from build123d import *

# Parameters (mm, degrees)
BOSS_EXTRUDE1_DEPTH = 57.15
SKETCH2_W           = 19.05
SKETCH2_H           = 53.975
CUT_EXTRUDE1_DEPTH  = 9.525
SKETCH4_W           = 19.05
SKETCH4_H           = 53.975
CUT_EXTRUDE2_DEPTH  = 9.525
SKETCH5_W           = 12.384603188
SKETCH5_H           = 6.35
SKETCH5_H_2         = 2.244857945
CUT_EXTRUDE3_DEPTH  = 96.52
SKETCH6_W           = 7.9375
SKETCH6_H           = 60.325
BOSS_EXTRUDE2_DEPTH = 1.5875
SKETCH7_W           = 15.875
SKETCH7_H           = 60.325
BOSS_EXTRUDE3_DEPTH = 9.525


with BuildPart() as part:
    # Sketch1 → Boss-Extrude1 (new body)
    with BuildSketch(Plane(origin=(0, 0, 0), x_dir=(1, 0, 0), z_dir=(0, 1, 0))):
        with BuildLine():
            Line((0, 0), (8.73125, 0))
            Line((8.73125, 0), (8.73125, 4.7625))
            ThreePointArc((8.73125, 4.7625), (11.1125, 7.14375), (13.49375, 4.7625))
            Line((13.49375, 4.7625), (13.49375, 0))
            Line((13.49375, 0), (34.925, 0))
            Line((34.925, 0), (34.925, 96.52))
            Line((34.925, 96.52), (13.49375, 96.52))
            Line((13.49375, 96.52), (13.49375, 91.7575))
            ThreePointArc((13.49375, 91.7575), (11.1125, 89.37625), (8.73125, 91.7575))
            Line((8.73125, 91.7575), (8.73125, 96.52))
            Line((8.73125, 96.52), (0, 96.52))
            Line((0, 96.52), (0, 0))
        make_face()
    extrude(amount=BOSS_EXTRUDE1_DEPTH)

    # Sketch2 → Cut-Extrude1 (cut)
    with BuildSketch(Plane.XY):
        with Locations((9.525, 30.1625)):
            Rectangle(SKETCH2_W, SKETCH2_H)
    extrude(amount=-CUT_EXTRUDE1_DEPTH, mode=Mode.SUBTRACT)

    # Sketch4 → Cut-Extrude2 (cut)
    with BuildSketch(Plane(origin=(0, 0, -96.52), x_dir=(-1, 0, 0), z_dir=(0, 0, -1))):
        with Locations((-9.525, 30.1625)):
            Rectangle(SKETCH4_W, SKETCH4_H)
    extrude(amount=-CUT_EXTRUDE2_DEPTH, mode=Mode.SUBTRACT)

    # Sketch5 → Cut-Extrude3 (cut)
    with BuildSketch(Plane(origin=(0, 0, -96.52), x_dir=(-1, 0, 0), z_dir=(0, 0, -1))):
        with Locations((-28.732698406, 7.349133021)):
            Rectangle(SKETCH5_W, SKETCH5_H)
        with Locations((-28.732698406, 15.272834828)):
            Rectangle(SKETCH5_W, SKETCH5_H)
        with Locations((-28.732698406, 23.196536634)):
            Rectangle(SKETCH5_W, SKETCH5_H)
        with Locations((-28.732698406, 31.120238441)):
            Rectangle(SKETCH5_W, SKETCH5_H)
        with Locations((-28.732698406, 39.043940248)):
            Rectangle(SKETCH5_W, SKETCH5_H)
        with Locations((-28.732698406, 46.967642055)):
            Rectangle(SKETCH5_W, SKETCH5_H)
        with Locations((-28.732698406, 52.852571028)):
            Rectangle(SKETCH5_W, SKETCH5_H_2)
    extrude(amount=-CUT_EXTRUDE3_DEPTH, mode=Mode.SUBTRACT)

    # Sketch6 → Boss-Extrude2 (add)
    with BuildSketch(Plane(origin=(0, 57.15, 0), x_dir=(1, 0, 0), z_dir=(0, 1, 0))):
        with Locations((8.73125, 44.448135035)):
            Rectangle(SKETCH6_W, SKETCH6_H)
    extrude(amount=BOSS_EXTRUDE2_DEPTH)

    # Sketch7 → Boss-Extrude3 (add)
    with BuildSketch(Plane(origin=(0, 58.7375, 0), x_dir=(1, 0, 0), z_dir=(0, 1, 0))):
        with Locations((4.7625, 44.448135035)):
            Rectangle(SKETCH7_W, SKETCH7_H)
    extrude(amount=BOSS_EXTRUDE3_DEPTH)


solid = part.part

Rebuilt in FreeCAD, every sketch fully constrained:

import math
import FreeCAD as App
import Part
import Sketcher
from FreeCAD import Vector
Q = App.Units.Quantity


def add_polygon(sketch, points):
    """Adds a closed chain of lines whose ends are joined by coincident constraints."""
    first, n = sketch.GeometryCount, len(points)
    for a, b in zip(points, points[1:] + points[:1]):
        sketch.addGeometry(Part.LineSegment(App.Vector(*a, 0), App.Vector(*b, 0)), False)
    for i in range(n):
        sketch.addConstraint(Sketcher.Constraint("Coincident", first + i, 2, first + (i + 1) % n, 1))

doc = App.newDocument("Part")
body = doc.addObject("PartDesign::Body", "Body")

sketch1 = doc.addObject("Sketcher::SketchObject", "Sketch")
body.addObject(sketch1)
sketch1.AttachmentSupport = (doc.XZ_Plane, [""])
sketch1.MapMode = "FlatFace"
sketch1.addGeometry(Part.LineSegment(Vector(0, 0, 0), Vector(8.7, 0, 0)), False)
sketch1.addGeometry(Part.LineSegment(Vector(8.7, 0, 0), Vector(8.7, -4.8, 0)), False)
sketch1.addGeometry(Part.ArcOfCircle(Part.Circle(Vector(11.1, -4.8, 0), Vector(0, 0, 1), 2.4), math.radians(180), math.radians(360)), False)
sketch1.addGeometry(Part.LineSegment(Vector(13.5, -4.8, 0), Vector(13.5, 0, 0)), False)
sketch1.addGeometry(Part.LineSegment(Vector(13.5, 0, 0), Vector(34.9, 0, 0)), False)
sketch1.addGeometry(Part.LineSegment(Vector(34.9, 0, 0), Vector(34.9, -96.5, 0)), False)
sketch1.addGeometry(Part.LineSegment(Vector(34.9, -96.5, 0), Vector(13.5, -96.5, 0)), False)
sketch1.addGeometry(Part.LineSegment(Vector(13.5, -96.5, 0), Vector(13.5, -91.8, 0)), False)
sketch1.addGeometry(Part.ArcOfCircle(Part.Circle(Vector(11.1, -91.8, 0), Vector(0, 0, 1), 2.4), math.radians(0), math.radians(180)), False)
sketch1.addGeometry(Part.LineSegment(Vector(8.7, -91.8, 0), Vector(8.7, -96.5, 0)), False)
sketch1.addGeometry(Part.LineSegment(Vector(8.7, -96.5, 0), Vector(0, -96.5, 0)), False)
sketch1.addGeometry(Part.LineSegment(Vector(0, -96.5, 0), Vector(0, 0, 0)), False)
sketch1.addConstraint(Sketcher.Constraint("Coincident", 0, 2, 1, 1))
sketch1.addConstraint(Sketcher.Constraint("Tangent", 1, 2, 2, 1))
sketch1.addConstraint(Sketcher.Constraint("Tangent", 2, 2, 3, 1))
sketch1.addConstraint(Sketcher.Constraint("Coincident", 3, 2, 4, 1))
sketch1.addConstraint(Sketcher.Constraint("Coincident", 4, 2, 5, 1))
sketch1.addConstraint(Sketcher.Constraint("Coincident", 5, 2, 6, 1))
sketch1.addConstraint(Sketcher.Constraint("Coincident", 6, 2, 7, 1))
sketch1.addConstraint(Sketcher.Constraint("Tangent", 7, 2, 8, 1))
sketch1.addConstraint(Sketcher.Constraint("Tangent", 8, 2, 9, 1))
sketch1.addConstraint(Sketcher.Constraint("Coincident", 9, 2, 10, 1))
sketch1.addConstraint(Sketcher.Constraint("Coincident", 10, 2, 11, 1))
sketch1.addConstraint(Sketcher.Constraint("Coincident", 11, 2, 0, 1))
sketch1.addConstraint(Sketcher.Constraint("Horizontal", 0))
sketch1.addConstraint(Sketcher.Constraint("Vertical", 1))
sketch1.addConstraint(Sketcher.Constraint("Vertical", 3))
sketch1.addConstraint(Sketcher.Constraint("Horizontal", 4))
sketch1.addConstraint(Sketcher.Constraint("Vertical", 5))
sketch1.addConstraint(Sketcher.Constraint("Horizontal", 6))
sketch1.addConstraint(Sketcher.Constraint("Vertical", 7))
sketch1.addConstraint(Sketcher.Constraint("Vertical", 9))
sketch1.addConstraint(Sketcher.Constraint("Horizontal", 10))
sketch1.addConstraint(Sketcher.Constraint("Vertical", 11))
sketch1.addConstraint(Sketcher.Constraint("Coincident", 11, 2, -1, 1))
sketch1.addConstraint(Sketcher.Constraint("Equal", 2, 8))
sketch1.addConstraint(Sketcher.Constraint("PointOnObject", 3, 2, -1))
sketch1.addConstraint(Sketcher.Constraint("Horizontal", 6, 2, 9, 2))
sketch1.addConstraint(Sketcher.Constraint("Vertical", 2, 3, 8, 3))
sketch1.addConstraint(Sketcher.Constraint("Equal", 3, 7))
sketch1.addConstraint(Sketcher.Constraint("DistanceY", 5, 2, 5, 1, Q("3.8 in")))
sketch1.addConstraint(Sketcher.Constraint("Radius", 2, Q("0.09375 in")))
sketch1.addConstraint(Sketcher.Constraint("DistanceX", 0, 1, 0, 2, Q("0.34375 in")))
sketch1.addConstraint(Sketcher.Constraint("DistanceX", 4, 1, 4, 2, Q("0.84375 in")))
sketch1.addConstraint(Sketcher.Constraint("DistanceY", 1, 2, 1, 1, Q("0.1875 in")))
pad1 = doc.addObject("PartDesign::Pad", "Pad")
body.addObject(pad1)
pad1.Profile = sketch1
pad1.Length = Q("2.25 in")
pad1.Reversed = True

sketch2 = doc.addObject("Sketcher::SketchObject", "Sketch001")
body.addObject(sketch2)
sketch2.AttachmentSupport = (doc.XY_Plane, [""])
sketch2.MapMode = "FlatFace"
add_polygon(sketch2, [(0, 57), (0, 3), (19, 3), (19, 57)])
sketch2.addConstraint(Sketcher.Constraint("Vertical", 0))
sketch2.addConstraint(Sketcher.Constraint("Horizontal", 1))
sketch2.addConstraint(Sketcher.Constraint("Vertical", 2))
sketch2.addConstraint(Sketcher.Constraint("Horizontal", 3))
sketch2.addConstraint(Sketcher.Constraint("PointOnObject", 0, 2, -2))
sketch2.addConstraint(Sketcher.Constraint("DistanceX", 1, 1, 1, 2, Q("0.75 in")))
sketch2.addConstraint(Sketcher.Constraint("DistanceY", 0, 2, 0, 1, Q("2.125 in")))
sketch2.addConstraint(Sketcher.Constraint("DistanceY", -1, 1, 2, 2, Q("2.25 in")))
pocket1 = doc.addObject("PartDesign::Pocket", "Pocket")
body.addObject(pocket1)
pocket1.Profile = sketch2
pocket1.Length = Q("0.375 in")

sketch3 = doc.addObject("Sketcher::SketchObject", "Sketch002")
body.addObject(sketch3)
sketch3.AttachmentSupport = (doc.XY_Plane, [""])
sketch3.MapMode = "FlatFace"
sketch3.AttachmentOffset = App.Placement(Vector(0, 0, -3.8 * 25.4), App.Rotation())
add_polygon(sketch3, [(19, 57), (19, 3), (0, 3), (0, 57)])
sketch3.addConstraint(Sketcher.Constraint("Vertical", 0))
sketch3.addConstraint(Sketcher.Constraint("Horizontal", 1))
sketch3.addConstraint(Sketcher.Constraint("Vertical", 2))
sketch3.addConstraint(Sketcher.Constraint("Horizontal", 3))
sketch3.addConstraint(Sketcher.Constraint("PointOnObject", 1, 2, -2))
sketch3.addConstraint(Sketcher.Constraint("DistanceX", 1, 2, 1, 1, Q("0.75 in")))
sketch3.addConstraint(Sketcher.Constraint("DistanceY", 0, 2, 0, 1, Q("2.125 in")))
sketch3.addConstraint(Sketcher.Constraint("DistanceY", -1, 1, 2, 2, Q("2.25 in")))
pocket2 = doc.addObject("PartDesign::Pocket", "Pocket001")
body.addObject(pocket2)
pocket2.Profile = sketch3
pocket2.Length = Q("0.375 in")
pocket2.Reversed = True

sketch4 = doc.addObject("Sketcher::SketchObject", "Sketch003")
body.addObject(sketch4)
sketch4.AttachmentSupport = (doc.XY_Plane, [""])
sketch4.MapMode = "FlatFace"
sketch4.AttachmentOffset = App.Placement(Vector(0, 0, -3.8 * 25.4), App.Rotation())
add_polygon(sketch4, [(34.9, 10.5), (34.9, 4.2), (22.5, 4.2), (22.5, 10.5)])
add_polygon(sketch4, [(34.9, 18.4), (34.9, 12.1), (22.5, 12.1), (22.5, 18.4)])
add_polygon(sketch4, [(34.9, 26.4), (34.9, 20), (22.5, 20), (22.5, 26.4)])
add_polygon(sketch4, [(34.9, 34.3), (34.9, 27.9), (22.5, 27.9), (22.5, 34.3)])
add_polygon(sketch4, [(34.9, 42.2), (34.9, 35.9), (22.5, 35.9), (22.5, 42.2)])
add_polygon(sketch4, [(34.9, 50.1), (34.9, 43.8), (22.5, 43.8), (22.5, 50.1)])
add_polygon(sketch4, [(34.9, 54), (34.9, 51.7), (22.5, 51.7), (22.5, 54)])
sketch4.addConstraint(Sketcher.Constraint("Vertical", 0))
sketch4.addConstraint(Sketcher.Constraint("Horizontal", 1))
sketch4.addConstraint(Sketcher.Constraint("Vertical", 2))
sketch4.addConstraint(Sketcher.Constraint("Horizontal", 3))
sketch4.addConstraint(Sketcher.Constraint("Vertical", 4))
sketch4.addConstraint(Sketcher.Constraint("Horizontal", 5))
sketch4.addConstraint(Sketcher.Constraint("Vertical", 6))
sketch4.addConstraint(Sketcher.Constraint("Horizontal", 7))
sketch4.addConstraint(Sketcher.Constraint("Vertical", 8))
sketch4.addConstraint(Sketcher.Constraint("Horizontal", 9))
sketch4.addConstraint(Sketcher.Constraint("Vertical", 10))
sketch4.addConstraint(Sketcher.Constraint("Horizontal", 11))
sketch4.addConstraint(Sketcher.Constraint("Vertical", 12))
sketch4.addConstraint(Sketcher.Constraint("Horizontal", 13))
sketch4.addConstraint(Sketcher.Constraint("Vertical", 14))
sketch4.addConstraint(Sketcher.Constraint("Horizontal", 15))
sketch4.addConstraint(Sketcher.Constraint("Vertical", 16))
sketch4.addConstraint(Sketcher.Constraint("Horizontal", 17))
sketch4.addConstraint(Sketcher.Constraint("Vertical", 18))
sketch4.addConstraint(Sketcher.Constraint("Horizontal", 19))
sketch4.addConstraint(Sketcher.Constraint("Vertical", 20))
sketch4.addConstraint(Sketcher.Constraint("Horizontal", 21))
sketch4.addConstraint(Sketcher.Constraint("Vertical", 22))
sketch4.addConstraint(Sketcher.Constraint("Horizontal", 23))
sketch4.addConstraint(Sketcher.Constraint("Vertical", 24))
sketch4.addConstraint(Sketcher.Constraint("Horizontal", 25))
sketch4.addConstraint(Sketcher.Constraint("Vertical", 26))
sketch4.addConstraint(Sketcher.Constraint("Horizontal", 27))
sketch4.addConstraint(Sketcher.Constraint("Vertical", 3, 2, 4, 2))
sketch4.addConstraint(Sketcher.Constraint("Vertical", 2, 2, 5, 2))
sketch4.addConstraint(Sketcher.Constraint("Vertical", 7, 2, 8, 2))
sketch4.addConstraint(Sketcher.Constraint("Vertical", 6, 2, 9, 2))
sketch4.addConstraint(Sketcher.Constraint("Vertical", 11, 2, 12, 2))
sketch4.addConstraint(Sketcher.Constraint("Vertical", 10, 2, 13, 2))
sketch4.addConstraint(Sketcher.Constraint("Vertical", 15, 2, 16, 2))
sketch4.addConstraint(Sketcher.Constraint("Vertical", 14, 2, 17, 2))
sketch4.addConstraint(Sketcher.Constraint("Vertical", 19, 2, 20, 2))
sketch4.addConstraint(Sketcher.Constraint("Vertical", 18, 2, 21, 2))
sketch4.addConstraint(Sketcher.Constraint("Vertical", 23, 2, 24, 2))
sketch4.addConstraint(Sketcher.Constraint("Vertical", 22, 2, 25, 2))
sketch4.addConstraint(Sketcher.Constraint("Equal", 2, 4))
sketch4.addConstraint(Sketcher.Constraint("Equal", 6, 8))
sketch4.addConstraint(Sketcher.Constraint("Equal", 10, 12))
sketch4.addConstraint(Sketcher.Constraint("Equal", 14, 16))
sketch4.addConstraint(Sketcher.Constraint("Equal", 18, 20))
sketch4.addConstraint(Sketcher.Constraint("DistanceY", 0, 2, 0, 1, Q("0.25 in")))
sketch4.addConstraint(Sketcher.Constraint("DistanceX", -1, 1, 0, 2, Q("1.375 in")))
sketch4.addConstraint(Sketcher.Constraint("DistanceY", -1, 1, 26, 2, Q("2.125 in")))
sketch4.addConstraint(Sketcher.Constraint("DistanceY", 23, 2, 24, 2, Q("0.0625 in")))
sketch4.addConstraint(Sketcher.Constraint("DistanceY", 3, 2, 4, 2, Q("1.573702 mm")))
sketch4.addConstraint(Sketcher.Constraint("DistanceY", 7, 2, 8, 2, Q("1.573702 mm")))
sketch4.addConstraint(Sketcher.Constraint("DistanceY", 11, 2, 12, 2, Q("1.573702 mm")))
sketch4.addConstraint(Sketcher.Constraint("DistanceY", 15, 2, 16, 2, Q("1.573702 mm")))
sketch4.addConstraint(Sketcher.Constraint("DistanceY", 19, 2, 20, 2, Q("1.573702 mm")))
sketch4.addConstraint(Sketcher.Constraint("DistanceX", 1, 2, 1, 1, Q("12.384603 mm")))
sketch4.addConstraint(Sketcher.Constraint("DistanceY", 24, 2, 24, 1, Q("2.244858 mm")))
pocket3 = doc.addObject("PartDesign::Pocket", "Pocket002")
body.addObject(pocket3)
pocket3.Profile = sketch4
pocket3.Length = Q("3.8 in")
pocket3.Reversed = True

sketch5 = doc.addObject("Sketcher::SketchObject", "Sketch004")
body.addObject(sketch5)
sketch5.AttachmentSupport = (doc.XZ_Plane, [""])
sketch5.MapMode = "FlatFace"
sketch5.AttachmentOffset = App.Placement(Vector(0, 0, -2.25 * 25.4), App.Rotation())
add_polygon(sketch5, [(5, -75), (5, -14), (13, -14), (13, -75)])
sketch5.addConstraint(Sketcher.Constraint("Vertical", 0))
sketch5.addConstraint(Sketcher.Constraint("Horizontal", 1))
sketch5.addConstraint(Sketcher.Constraint("Vertical", 2))
sketch5.addConstraint(Sketcher.Constraint("Horizontal", 3))
sketch5.addConstraint(Sketcher.Constraint("DistanceX", -1, 1, 1, 2, Q("0.5 in")))
sketch5.addConstraint(Sketcher.Constraint("DistanceX", 1, 1, 1, 2, Q("0.3125 in")))
sketch5.addConstraint(Sketcher.Constraint("DistanceY", 0, 1, 0, 2, Q("2.375 in")))
sketch5.addConstraint(Sketcher.Constraint("DistanceY", 0, 2, -1, 1, Q("14.285635 mm")))
pad2 = doc.addObject("PartDesign::Pad", "Pad001")
body.addObject(pad2)
pad2.Profile = sketch5
pad2.Length = Q("0.0625 in")
pad2.Reversed = True

sketch6 = doc.addObject("Sketcher::SketchObject", "Sketch005")
body.addObject(sketch6)
sketch6.AttachmentSupport = (doc.XZ_Plane, [""])
sketch6.MapMode = "FlatFace"
sketch6.AttachmentOffset = App.Placement(Vector(0, 0, -2.3125 * 25.4), App.Rotation())
add_polygon(sketch6, [(-3, -75), (-3, -14), (13, -14), (13, -75)])
sketch6.addConstraint(Sketcher.Constraint("Vertical", 0))
sketch6.addConstraint(Sketcher.Constraint("Horizontal", 1))
sketch6.addConstraint(Sketcher.Constraint("Vertical", 2))
sketch6.addConstraint(Sketcher.Constraint("Horizontal", 3))
sketch6.addConstraint(Sketcher.Constraint("DistanceX", -1, 1, 1, 2, Q("0.5 in")))
sketch6.addConstraint(Sketcher.Constraint("DistanceX", 1, 1, 1, 2, Q("0.625 in")))
sketch6.addConstraint(Sketcher.Constraint("DistanceY", 0, 1, 0, 2, Q("2.375 in")))
sketch6.addConstraint(Sketcher.Constraint("DistanceY", 0, 2, -1, 1, Q("14.285635 mm")))
pad3 = doc.addObject("PartDesign::Pad", "Pad002")
body.addObject(pad3)
pad3.Profile = sketch6
pad3.Length = Q("0.375 in")
pad3.Reversed = True

doc.recompute()
